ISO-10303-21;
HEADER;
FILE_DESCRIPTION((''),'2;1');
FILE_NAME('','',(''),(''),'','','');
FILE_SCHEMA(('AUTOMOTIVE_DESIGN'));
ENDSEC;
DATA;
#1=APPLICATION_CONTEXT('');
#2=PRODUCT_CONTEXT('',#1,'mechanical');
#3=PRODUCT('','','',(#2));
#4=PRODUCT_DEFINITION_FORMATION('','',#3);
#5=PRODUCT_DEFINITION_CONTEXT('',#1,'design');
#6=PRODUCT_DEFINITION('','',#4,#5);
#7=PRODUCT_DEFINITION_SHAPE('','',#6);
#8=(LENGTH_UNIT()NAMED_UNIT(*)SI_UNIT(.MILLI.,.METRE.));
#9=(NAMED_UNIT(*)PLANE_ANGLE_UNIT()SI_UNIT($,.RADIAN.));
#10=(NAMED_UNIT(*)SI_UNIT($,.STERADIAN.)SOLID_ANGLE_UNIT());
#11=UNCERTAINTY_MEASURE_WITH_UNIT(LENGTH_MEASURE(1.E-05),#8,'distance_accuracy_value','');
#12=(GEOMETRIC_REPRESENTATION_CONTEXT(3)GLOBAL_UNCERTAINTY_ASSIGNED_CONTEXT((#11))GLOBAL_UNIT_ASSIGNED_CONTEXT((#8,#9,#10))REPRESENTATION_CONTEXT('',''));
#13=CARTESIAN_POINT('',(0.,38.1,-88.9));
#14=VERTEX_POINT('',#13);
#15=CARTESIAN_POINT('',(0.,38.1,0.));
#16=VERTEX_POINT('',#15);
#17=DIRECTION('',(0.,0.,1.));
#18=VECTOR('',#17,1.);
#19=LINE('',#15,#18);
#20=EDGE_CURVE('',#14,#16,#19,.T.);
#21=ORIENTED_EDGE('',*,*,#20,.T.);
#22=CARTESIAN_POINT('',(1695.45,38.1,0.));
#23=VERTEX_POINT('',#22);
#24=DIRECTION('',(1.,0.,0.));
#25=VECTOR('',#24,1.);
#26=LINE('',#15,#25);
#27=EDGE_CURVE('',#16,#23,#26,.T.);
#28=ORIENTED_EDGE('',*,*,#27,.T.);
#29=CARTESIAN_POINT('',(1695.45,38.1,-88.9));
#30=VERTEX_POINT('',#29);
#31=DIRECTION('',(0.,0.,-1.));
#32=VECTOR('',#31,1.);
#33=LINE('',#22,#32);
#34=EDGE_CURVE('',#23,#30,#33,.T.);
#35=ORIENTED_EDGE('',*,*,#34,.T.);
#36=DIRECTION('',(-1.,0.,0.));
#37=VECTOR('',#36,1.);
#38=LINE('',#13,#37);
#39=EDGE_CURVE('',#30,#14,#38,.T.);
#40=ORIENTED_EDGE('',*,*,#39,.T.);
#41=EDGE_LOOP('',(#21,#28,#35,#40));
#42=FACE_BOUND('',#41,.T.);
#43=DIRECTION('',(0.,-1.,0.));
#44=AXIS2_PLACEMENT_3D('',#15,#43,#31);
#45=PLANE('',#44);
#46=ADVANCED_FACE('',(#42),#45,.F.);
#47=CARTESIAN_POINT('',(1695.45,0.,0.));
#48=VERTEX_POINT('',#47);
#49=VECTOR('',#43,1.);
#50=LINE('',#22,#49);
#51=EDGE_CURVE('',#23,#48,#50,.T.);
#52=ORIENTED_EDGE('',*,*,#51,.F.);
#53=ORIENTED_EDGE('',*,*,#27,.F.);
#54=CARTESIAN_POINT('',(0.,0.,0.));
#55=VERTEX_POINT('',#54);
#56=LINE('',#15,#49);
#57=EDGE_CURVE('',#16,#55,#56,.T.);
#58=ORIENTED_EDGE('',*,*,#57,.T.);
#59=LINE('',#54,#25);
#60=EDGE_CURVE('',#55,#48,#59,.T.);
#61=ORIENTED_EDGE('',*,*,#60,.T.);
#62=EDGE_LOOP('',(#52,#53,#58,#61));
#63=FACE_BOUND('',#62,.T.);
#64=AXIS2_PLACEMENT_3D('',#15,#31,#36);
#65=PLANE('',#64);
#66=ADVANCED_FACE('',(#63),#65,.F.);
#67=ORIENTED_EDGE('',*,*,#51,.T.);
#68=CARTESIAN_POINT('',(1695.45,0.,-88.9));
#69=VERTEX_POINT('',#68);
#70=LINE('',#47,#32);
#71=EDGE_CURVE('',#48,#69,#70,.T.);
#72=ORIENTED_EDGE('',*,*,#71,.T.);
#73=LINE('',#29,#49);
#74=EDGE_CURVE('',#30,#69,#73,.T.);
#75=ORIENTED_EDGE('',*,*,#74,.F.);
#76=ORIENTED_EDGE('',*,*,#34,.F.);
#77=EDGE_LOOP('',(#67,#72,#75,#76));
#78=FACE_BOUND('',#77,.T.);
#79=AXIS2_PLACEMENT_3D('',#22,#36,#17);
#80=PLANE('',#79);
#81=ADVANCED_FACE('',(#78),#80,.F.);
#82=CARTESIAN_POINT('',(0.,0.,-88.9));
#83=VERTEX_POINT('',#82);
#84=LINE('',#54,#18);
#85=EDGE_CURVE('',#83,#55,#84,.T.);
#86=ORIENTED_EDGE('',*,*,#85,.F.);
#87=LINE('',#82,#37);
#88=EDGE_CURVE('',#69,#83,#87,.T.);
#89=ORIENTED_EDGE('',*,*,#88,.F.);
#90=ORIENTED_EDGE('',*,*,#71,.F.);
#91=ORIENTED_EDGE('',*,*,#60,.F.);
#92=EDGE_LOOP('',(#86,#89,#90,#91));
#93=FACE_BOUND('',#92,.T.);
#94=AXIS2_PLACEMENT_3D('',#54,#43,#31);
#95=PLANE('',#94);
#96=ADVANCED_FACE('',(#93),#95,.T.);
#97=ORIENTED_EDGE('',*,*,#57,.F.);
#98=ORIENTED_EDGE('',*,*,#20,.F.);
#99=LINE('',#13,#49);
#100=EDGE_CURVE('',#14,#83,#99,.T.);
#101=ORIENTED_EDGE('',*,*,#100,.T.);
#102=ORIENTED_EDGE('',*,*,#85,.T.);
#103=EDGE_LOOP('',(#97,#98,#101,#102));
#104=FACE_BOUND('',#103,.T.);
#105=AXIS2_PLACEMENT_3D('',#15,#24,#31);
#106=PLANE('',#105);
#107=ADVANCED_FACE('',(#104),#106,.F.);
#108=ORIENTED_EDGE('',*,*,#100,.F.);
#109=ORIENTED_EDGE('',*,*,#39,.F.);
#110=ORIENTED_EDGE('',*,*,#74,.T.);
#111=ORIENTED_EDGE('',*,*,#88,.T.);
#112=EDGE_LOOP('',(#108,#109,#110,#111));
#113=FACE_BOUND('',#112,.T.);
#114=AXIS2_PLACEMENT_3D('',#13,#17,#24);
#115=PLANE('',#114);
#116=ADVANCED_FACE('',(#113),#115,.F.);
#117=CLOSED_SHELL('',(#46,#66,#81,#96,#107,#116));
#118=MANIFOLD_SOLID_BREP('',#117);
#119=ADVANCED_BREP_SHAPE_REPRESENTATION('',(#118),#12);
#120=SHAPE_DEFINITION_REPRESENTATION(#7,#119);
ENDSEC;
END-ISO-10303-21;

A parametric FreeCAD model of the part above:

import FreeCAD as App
import Part
import Sketcher

V = App.Vector
Q = App.Units.Quantity

doc = App.newDocument("Part")
params = doc.addObject("Spreadsheet::Sheet", "Params")
for row, (alias, value) in enumerate([
    ("sketch1_height", "3.5 in"),
    ("sketch1_width", "66.75 in"),
    ("pad1_length", "1.5 in"),
], start=1):
    params.set(f"A{row}", alias)
    params.set(f"B{row}", "=" + value)
    params.setAlias(f"B{row}", alias)

body = doc.addObject("PartDesign::Body", "Body")

# Sketch on XZ plane
sketch1 = body.newObject("Sketcher::SketchObject", "Sketch")
sketch1.AttachmentSupport = (doc.getObject("XZ_Plane"), [""])
sketch1.MapMode = "FlatFace"
sketch1.addGeometry([
    Part.LineSegment(V(0, -89, 0), V(0, 0, 0)),
    Part.LineSegment(V(0, 0, 0), V(1695, 0, 0)),
    Part.LineSegment(V(1695, 0, 0), V(1695, -89, 0)),
    Part.LineSegment(V(1695, -89, 0), V(0, -89, 0)),
], False)
sketch1.addConstraint([
    Sketcher.Constraint("Coincident", 0, 2, 1, 1),
    Sketcher.Constraint("Coincident", 1, 2, 2, 1),
    Sketcher.Constraint("Coincident", 2, 2, 3, 1),
    Sketcher.Constraint("Coincident", 3, 2, 0, 1),
    Sketcher.Constraint("Vertical", 0),
    Sketcher.Constraint("Horizontal", 1),
    Sketcher.Constraint("Vertical", 2),
    Sketcher.Constraint("Horizontal", 3),
    Sketcher.Constraint("Coincident", 0, 2, -1, 1),
    Sketcher.Constraint("DistanceY", 0, 1, 0, 2, Q("3.5 in")),
    Sketcher.Constraint("DistanceX", 1, 1, 1, 2, Q("66.75 in")),
])
sketch1.setExpression("Constraints[9]", "Params.sketch1_height")
sketch1.setExpression("Constraints[10]", "Params.sketch1_width")
pad1 = body.newObject("PartDesign::Pad", "Pad")
pad1.Profile = sketch1
pad1.setExpression("Length", "Params.pad1_length")
pad1.Reversed = True

doc.recompute()
